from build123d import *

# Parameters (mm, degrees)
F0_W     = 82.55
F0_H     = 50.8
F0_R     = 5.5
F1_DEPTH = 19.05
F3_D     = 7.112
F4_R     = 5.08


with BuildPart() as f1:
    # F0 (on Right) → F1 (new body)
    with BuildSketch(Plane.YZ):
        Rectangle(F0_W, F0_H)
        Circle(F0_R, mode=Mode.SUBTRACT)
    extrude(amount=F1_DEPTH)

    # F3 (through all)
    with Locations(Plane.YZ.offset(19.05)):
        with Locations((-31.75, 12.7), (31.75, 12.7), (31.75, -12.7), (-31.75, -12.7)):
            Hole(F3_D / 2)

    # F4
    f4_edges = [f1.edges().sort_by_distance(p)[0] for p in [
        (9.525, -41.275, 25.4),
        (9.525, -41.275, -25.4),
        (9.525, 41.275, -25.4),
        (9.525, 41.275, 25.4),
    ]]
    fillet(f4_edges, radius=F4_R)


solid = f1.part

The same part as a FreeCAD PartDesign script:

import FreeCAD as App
import Part
import Sketcher
from FreeCAD import Vector
Q = App.Units.Quantity


def edges_at(feature, points):
    """Names of the edges that pass closest to the given points."""
    edges = feature.Shape.Edges
    near = lambda p: min(range(len(edges)), key=lambda i: edges[i].distToShape(Part.Vertex(*p))[0])
    return sorted({f"Edge{near(p) + 1}" for p in points})

doc = App.newDocument("Part")
body = doc.addObject("PartDesign::Body", "Body")

# Sketch on YZ plane
sketch1 = doc.addObject("Sketcher::SketchObject", "Sketch")
body.addObject(sketch1)
sketch1.AttachmentSupport = (doc.YZ_Plane, [""])
sketch1.MapMode = "FlatFace"
sketch1.addGeometry(Part.LineSegment(Vector(-41, 25, 0), Vector(-41, -25, 0)), False)
sketch1.addGeometry(Part.LineSegment(Vector(-41, -25, 0), Vector(41, -25, 0)), False)
sketch1.addGeometry(Part.LineSegment(Vector(41, -25, 0), Vector(41, 25, 0)), False)
sketch1.addGeometry(Part.LineSegment(Vector(41, 25, 0), Vector(-41, 25, 0)), False)
sketch1.addGeometry(Part.Circle(Vector(0, 0, 0), Vector(0, 0, 1), 6), False)
sketch1.addConstraint(Sketcher.Constraint("Coincident", 0, 2, 1, 1))
sketch1.addConstraint(Sketcher.Constraint("Coincident", 1, 2, 2, 1))
sketch1.addConstraint(Sketcher.Constraint("Coincident", 2, 2, 3, 1))
sketch1.addConstraint(Sketcher.Constraint("Coincident", 3, 2, 0, 1))
sketch1.addConstraint(Sketcher.Constraint("Vertical", 0))
sketch1.addConstraint(Sketcher.Constraint("Horizontal", 1))
sketch1.addConstraint(Sketcher.Constraint("Vertical", 2))
sketch1.addConstraint(Sketcher.Constraint("Horizontal", 3))
sketch1.addConstraint(Sketcher.Constraint("Coincident", 4, 3, -1, 1))
sketch1.addConstraint(Sketcher.Constraint("Symmetric", 0, 2, 2, 2, -1, 1))
sketch1.addConstraint(Sketcher.Constraint("DistanceY", 0, 2, 0, 1, Q("2 in")))
sketch1.addConstraint(Sketcher.Constraint("DistanceX", 1, 1, 1, 2, Q("3.25 in")))
sketch1.addConstraint(Sketcher.Constraint("Diameter", 4, Q("11 mm")))
pad1 = doc.addObject("PartDesign::Pad", "Pad")
body.addObject(pad1)
pad1.Profile = sketch1
pad1.Length = Q("0.75 in")

# Sketch on YZ plane
sketch2 = doc.addObject("Sketcher::SketchObject", "Sketch001")
body.addObject(sketch2)
sketch2.AttachmentSupport = (doc.YZ_Plane, [""])
sketch2.MapMode = "FlatFace"
sketch2.AttachmentOffset = App.Placement(Vector(0, 0, 0.75 * 25.4), App.Rotation())
sketch2.addGeometry(Part.Circle(Vector(-31.8, 12.7, 0), Vector(0, 0, 1), 3.6), False)
sketch2.addGeometry(Part.Circle(Vector(31.8, 12.7, 0), Vector(0, 0, 1), 3.6), False)
sketch2.addGeometry(Part.Circle(Vector(31.8, -12.7, 0), Vector(0, 0, 1), 3.6), False)
sketch2.addGeometry(Part.Circle(Vector(-31.8, -12.7, 0), Vector(0, 0, 1), 3.6), False)
sketch2.addConstraint(Sketcher.Constraint("Equal", 0, 1))
sketch2.addConstraint(Sketcher.Constraint("Equal", 1, 2))
sketch2.addConstraint(Sketcher.Constraint("Equal", 2, 3))
sketch2.addConstraint(Sketcher.Constraint("Symmetric", 0, 3, 2, 3, -1, 1))
sketch2.addConstraint(Sketcher.Constraint("Symmetric", 1, 3, 3, 3, -1, 1))
sketch2.addConstraint(Sketcher.Constraint("Symmetric", 0, 3, 1, 3, -2))
sketch2.addConstraint(Sketcher.Constraint("Diameter", 0, Q("0.28 in")))
sketch2.addConstraint(Sketcher.Constraint("DistanceY", 2, 3, 1, 3, Q("1 in")))
sketch2.addConstraint(Sketcher.Constraint("DistanceX", 0, 3, 1, 3, Q("2.5 in")))
doc.recompute()
hole = doc.addObject("PartDesign::Hole", "Hole")
body.addObject(hole)
hole.Profile = sketch2
hole.ThreadType = "None"
hole.Diameter = Q("0.28 in")
hole.DepthType = "ThroughAll"
doc.recompute()

fillet = doc.addObject("PartDesign::Fillet", "Fillet")
body.addObject(fillet)
fillet.Base = (hole, edges_at(hole, [
    (9.525, -41.275, 25.4),
    (9.525, -41.275, -25.4),
    (9.525, 41.275, -25.4),
    (9.525, 41.275, 25.4),
]))
fillet.Radius = Q("0.2 in")

doc.recompute()
